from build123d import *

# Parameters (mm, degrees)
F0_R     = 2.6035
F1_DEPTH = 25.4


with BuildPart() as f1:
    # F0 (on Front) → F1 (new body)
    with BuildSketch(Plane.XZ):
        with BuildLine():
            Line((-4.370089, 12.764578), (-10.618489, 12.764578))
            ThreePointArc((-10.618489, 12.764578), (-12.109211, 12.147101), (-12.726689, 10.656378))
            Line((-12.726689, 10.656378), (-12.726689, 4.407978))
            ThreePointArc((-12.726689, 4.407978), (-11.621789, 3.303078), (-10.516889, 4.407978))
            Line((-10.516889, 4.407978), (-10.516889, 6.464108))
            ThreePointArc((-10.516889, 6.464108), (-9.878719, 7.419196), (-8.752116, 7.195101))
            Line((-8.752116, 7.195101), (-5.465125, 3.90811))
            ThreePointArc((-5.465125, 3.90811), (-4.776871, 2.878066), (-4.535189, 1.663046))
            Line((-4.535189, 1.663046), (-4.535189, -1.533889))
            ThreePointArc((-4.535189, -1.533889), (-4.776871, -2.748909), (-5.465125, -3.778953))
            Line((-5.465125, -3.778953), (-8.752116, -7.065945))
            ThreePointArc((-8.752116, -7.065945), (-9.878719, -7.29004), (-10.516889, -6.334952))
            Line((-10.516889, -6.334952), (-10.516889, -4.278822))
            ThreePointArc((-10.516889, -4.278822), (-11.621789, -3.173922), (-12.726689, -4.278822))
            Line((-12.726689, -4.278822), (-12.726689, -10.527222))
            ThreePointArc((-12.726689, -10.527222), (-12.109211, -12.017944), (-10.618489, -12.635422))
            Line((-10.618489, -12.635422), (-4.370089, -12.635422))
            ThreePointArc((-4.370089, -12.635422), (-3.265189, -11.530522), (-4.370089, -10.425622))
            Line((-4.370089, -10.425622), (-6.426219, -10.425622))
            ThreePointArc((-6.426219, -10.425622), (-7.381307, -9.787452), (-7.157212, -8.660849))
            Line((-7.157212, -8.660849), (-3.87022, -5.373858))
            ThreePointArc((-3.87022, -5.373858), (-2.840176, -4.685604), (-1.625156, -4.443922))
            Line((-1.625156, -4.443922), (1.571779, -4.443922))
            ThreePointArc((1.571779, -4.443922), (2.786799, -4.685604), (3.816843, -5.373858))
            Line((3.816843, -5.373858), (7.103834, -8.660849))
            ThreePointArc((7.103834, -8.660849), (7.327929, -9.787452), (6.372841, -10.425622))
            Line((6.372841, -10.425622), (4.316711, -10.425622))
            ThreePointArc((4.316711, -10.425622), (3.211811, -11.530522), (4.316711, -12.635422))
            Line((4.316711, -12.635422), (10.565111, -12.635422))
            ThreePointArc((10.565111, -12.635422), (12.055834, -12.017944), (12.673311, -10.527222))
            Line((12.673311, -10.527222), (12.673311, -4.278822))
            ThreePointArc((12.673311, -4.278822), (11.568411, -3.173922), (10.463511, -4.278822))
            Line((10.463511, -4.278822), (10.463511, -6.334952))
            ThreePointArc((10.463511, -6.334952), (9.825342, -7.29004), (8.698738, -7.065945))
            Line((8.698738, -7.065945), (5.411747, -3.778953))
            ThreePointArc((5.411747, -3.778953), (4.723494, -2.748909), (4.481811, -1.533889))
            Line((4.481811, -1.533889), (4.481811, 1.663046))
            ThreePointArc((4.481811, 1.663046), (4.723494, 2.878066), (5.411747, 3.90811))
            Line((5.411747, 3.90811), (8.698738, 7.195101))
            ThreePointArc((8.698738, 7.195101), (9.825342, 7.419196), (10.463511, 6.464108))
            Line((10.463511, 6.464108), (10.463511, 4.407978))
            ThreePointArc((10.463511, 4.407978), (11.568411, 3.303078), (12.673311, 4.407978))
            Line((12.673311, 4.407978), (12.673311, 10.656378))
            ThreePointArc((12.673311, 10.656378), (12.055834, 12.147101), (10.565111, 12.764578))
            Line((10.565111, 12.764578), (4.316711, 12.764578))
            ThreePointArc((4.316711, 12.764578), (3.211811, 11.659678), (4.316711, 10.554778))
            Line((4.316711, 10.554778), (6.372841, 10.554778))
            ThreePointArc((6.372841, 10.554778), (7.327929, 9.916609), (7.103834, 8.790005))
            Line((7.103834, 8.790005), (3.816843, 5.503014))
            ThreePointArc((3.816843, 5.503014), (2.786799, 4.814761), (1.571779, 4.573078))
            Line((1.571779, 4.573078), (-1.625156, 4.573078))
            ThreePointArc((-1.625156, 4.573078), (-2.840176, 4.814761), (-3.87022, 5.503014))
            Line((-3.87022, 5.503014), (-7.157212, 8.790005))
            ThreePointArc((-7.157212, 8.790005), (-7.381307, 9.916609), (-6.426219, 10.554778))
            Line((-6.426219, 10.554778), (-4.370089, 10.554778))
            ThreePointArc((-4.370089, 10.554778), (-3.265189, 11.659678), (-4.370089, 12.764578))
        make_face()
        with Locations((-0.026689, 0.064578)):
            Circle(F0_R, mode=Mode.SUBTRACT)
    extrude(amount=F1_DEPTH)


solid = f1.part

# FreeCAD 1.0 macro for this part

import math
import FreeCAD as App
import Part
import Sketcher

V = App.Vector
Q = App.Units.Quantity

doc = App.newDocument("Part")
params = doc.addObject("Spreadsheet::Sheet", "Params")
for row, (alias, value) in enumerate([
    ("sketch1_diameter", "0.205 in"),
    ("sketch1_radius", "0.083 in"),
    ("sketch1_radius2", "0.1250002 in"),
    ("sketch1_width", "0.246 in"),
    ("pad1_length", "1 in"),
], start=1):
    params.set(f"A{row}", alias)
    params.set(f"B{row}", "=" + value)
    params.setAlias(f"B{row}", alias)

body = doc.addObject("PartDesign::Body", "Body")

sketch1 = doc.addObject("Sketcher::SketchObject", "Sketch")
body.addObject(sketch1)
sketch1.AttachmentSupport = (doc.XZ_Plane, [""])
sketch1.MapMode = "FlatFace"
sketch1.addGeometry([
    Part.LineSegment(V(-4.4, 12.8, 0), V(-10.6, 12.8, 0)),
    Part.ArcOfCircle(Part.Circle(V(-10.6, 10.7, 0), V(0, 0, 1), 2.1), math.radians(90), math.radians(180)),
    Part.LineSegment(V(-12.7, 10.7, 0), V(-12.7, 4.4, 0)),
    Part.ArcOfCircle(Part.Circle(V(-11.6, 4.4, 0), V(0, 0, 1), 1.1), math.radians(180), math.radians(360)),
    Part.LineSegment(V(-10.5, 4.4, 0), V(-10.5, 6.5, 0)),
    Part.ArcOfCircle(Part.Circle(V(-9.5, 6.5, 0), V(0, 0, 1), 1), math.radians(45), math.radians(180)),
    Part.LineSegment(V(-8.8, 7.2, 0), V(-5.5, 3.9, 0)),
    Part.ArcOfCircle(Part.Circle(V(-7.7, 1.7, 0), V(0, 0, 1), 3.2), math.radians(0), math.radians(45)),
    Part.LineSegment(V(-4.5, 1.7, 0), V(-4.5, -1.5, 0)),
    Part.ArcOfCircle(Part.Circle(V(-7.7, -1.5, 0), V(0, 0, 1), 3.2), math.radians(-45), math.radians(0)),
    Part.LineSegment(V(-5.5, -3.8, 0), V(-8.8, -7.1, 0)),
    Part.ArcOfCircle(Part.Circle(V(-9.5, -6.3, 0), V(0, 0, 1), 1), math.radians(-180), math.radians(-45)),
    Part.LineSegment(V(-10.5, -6.3, 0), V(-10.5, -4.3, 0)),
    Part.ArcOfCircle(Part.Circle(V(-11.6, -4.3, 0), V(0, 0, 1), 1.1), math.radians(0), math.radians(180)),
    Part.LineSegment(V(-12.7, -4.3, 0), V(-12.7, -10.5, 0)),
    Part.ArcOfCircle(Part.Circle(V(-10.6, -10.5, 0), V(0, 0, 1), 2.1), math.radians(-180), math.radians(-90)),
    Part.LineSegment(V(-10.6, -12.6, 0), V(-4.4, -12.6, 0)),
    Part.ArcOfCircle(Part.Circle(V(-4.4, -11.5, 0), V(0, 0, 1), 1.1), math.radians(-90), math.radians(90)),
    Part.LineSegment(V(-4.4, -10.4, 0), V(-6.4, -10.4, 0)),
    Part.ArcOfCircle(Part.Circle(V(-6.4, -9.4, 0), V(0, 0, 1), 1), math.radians(135), math.radians(270)),
    Part.LineSegment(V(-7.2, -8.7, 0), V(-3.9, -5.4, 0)),
    Part.ArcOfCircle(Part.Circle(V(-1.6, -7.6, 0), V(0, 0, 1), 3.2), math.radians(90), math.radians(135)),
    Part.LineSegment(V(-1.6, -4.4, 0), V(1.6, -4.4, 0)),
    Part.ArcOfCircle(Part.Circle(V(1.6, -7.6, 0), V(0, 0, 1), 3.2), math.radians(45), math.radians(90)),
    Part.LineSegment(V(3.8, -5.4, 0), V(7.1, -8.7, 0)),
    Part.ArcOfCircle(Part.Circle(V(6.4, -9.4, 0), V(0, 0, 1), 1), math.radians(-90), math.radians(45)),
    Part.LineSegment(V(6.4, -10.4, 0), V(4.3, -10.4, 0)),
    Part.ArcOfCircle(Part.Circle(V(4.3, -11.5, 0), V(0, 0, 1), 1.1), math.radians(90), math.radians(270)),
    Part.LineSegment(V(4.3, -12.6, 0), V(10.6, -12.6, 0)),
    Part.ArcOfCircle(Part.Circle(V(10.6, -10.5, 0), V(0, 0, 1), 2.1), math.radians(-90), math.radians(0)),
    Part.LineSegment(V(12.7, -10.5, 0), V(12.7, -4.3, 0)),
    Part.ArcOfCircle(Part.Circle(V(11.6, -4.3, 0), V(0, 0, 1), 1.1), math.radians(0), math.radians(180)),
    Part.LineSegment(V(10.5, -4.3, 0), V(10.5, -6.3, 0)),
    Part.ArcOfCircle(Part.Circle(V(9.4, -6.3, 0), V(0, 0, 1), 1), math.radians(-135), math.radians(0)),
    Part.LineSegment(V(8.7, -7.1, 0), V(5.4, -3.8, 0)),
    Part.ArcOfCircle(Part.Circle(V(7.7, -1.5, 0), V(0, 0, 1), 3.2), math.radians(-180), math.radians(-135)),
    Part.LineSegment(V(4.5, -1.5, 0), V(4.5, 1.7, 0)),
    Part.ArcOfCircle(Part.Circle(V(7.7, 1.7, 0), V(0, 0, 1), 3.2), math.radians(135), math.radians(180)),
    Part.LineSegment(V(5.4, 3.9, 0), V(8.7, 7.2, 0)),
    Part.ArcOfCircle(Part.Circle(V(9.4, 6.5, 0), V(0, 0, 1), 1), math.radians(0), math.radians(135)),
    Part.LineSegment(V(10.5, 6.5, 0), V(10.5, 4.4, 0)),
    Part.ArcOfCircle(Part.Circle(V(11.6, 4.4, 0), V(0, 0, 1), 1.1), math.radians(180), math.radians(360)),
    Part.LineSegment(V(12.7, 4.4, 0), V(12.7, 10.7, 0)),
    Part.ArcOfCircle(Part.Circle(V(10.6, 10.7, 0), V(0, 0, 1), 2.1), math.radians(0), math.radians(90)),
    Part.LineSegment(V(10.6, 12.8, 0), V(4.3, 12.8, 0)),
    Part.ArcOfCircle(Part.Circle(V(4.3, 11.7, 0), V(0, 0, 1), 1.1), math.radians(90), math.radians(270)),
    Part.LineSegment(V(4.3, 10.6, 0), V(6.4, 10.6, 0)),
    Part.ArcOfCircle(Part.Circle(V(6.4, 9.5, 0), V(0, 0, 1), 1), math.radians(-45), math.radians(90)),
    Part.LineSegment(V(7.1, 8.8, 0), V(3.8, 5.5, 0)),
    Part.ArcOfCircle(Part.Circle(V(1.6, 7.7, 0), V(0, 0, 1), 3.2), math.radians(-90), math.radians(-45)),
    Part.LineSegment(V(1.6, 4.6, 0), V(-1.6, 4.6, 0)),
    Part.ArcOfCircle(Part.Circle(V(-1.6, 7.7, 0), V(0, 0, 1), 3.2), math.radians(-135), math.radians(-90)),
    Part.LineSegment(V(-3.9, 5.5, 0), V(-7.2, 8.8, 0)),
    Part.ArcOfCircle(Part.Circle(V(-6.4, 9.5, 0), V(0, 0, 1), 1), math.radians(90), math.radians(225)),
    Part.LineSegment(V(-6.4, 10.6, 0), V(-4.4, 10.6, 0)),
    Part.ArcOfCircle(Part.Circle(V(-4.4, 11.7, 0), V(0, 0, 1), 1.1), math.radians(-90), math.radians(90)),
    Part.Circle(V(0, 0.1, 0), V(0, 0, 1), 2.6),
], False)
sketch1.addConstraint([
    Sketcher.Constraint("Tangent", 0, 2, 1, 1),
    Sketcher.Constraint("Tangent", 1, 2, 2, 1),
    Sketcher.Constraint("Tangent", 2, 2, 3, 1),
    Sketcher.Constraint("Tangent", 3, 2, 4, 1),
    Sketcher.Constraint("Tangent", 4, 2, 5, 2),
    Sketcher.Constraint("Tangent", 5, 1, 6, 1),
    Sketcher.Constraint("Tangent", 6, 2, 7, 2),
    Sketcher.Constraint("Tangent", 7, 1, 8, 1),
    Sketcher.Constraint("Tangent", 8, 2, 9, 2),
    Sketcher.Constraint("Tangent", 9, 1, 10, 1),
    Sketcher.Constraint("Tangent", 10, 2, 11, 2),
    Sketcher.Constraint("Tangent", 11, 1, 12, 1),
    Sketcher.Constraint("Tangent", 12, 2, 13, 1),
    Sketcher.Constraint("Tangent", 13, 2, 14, 1),
    Sketcher.Constraint("Tangent", 14, 2, 15, 1),
    Sketcher.Constraint("Tangent", 15, 2, 16, 1),
    Sketcher.Constraint("Tangent", 16, 2, 17, 1),
    Sketcher.Constraint("Tangent", 17, 2, 18, 1),
    Sketcher.Constraint("Tangent", 18, 2, 19, 2),
    Sketcher.Constraint("Tangent", 19, 1, 20, 1),
    Sketcher.Constraint("Tangent", 20, 2, 21, 2),
    Sketcher.Constraint("Tangent", 21, 1, 22, 1),
    Sketcher.Constraint("Tangent", 22, 2, 23, 2),
    Sketcher.Constraint("Tangent", 23, 1, 24, 1),
    Sketcher.Constraint("Tangent", 24, 2, 25, 2),
    Sketcher.Constraint("Tangent", 25, 1, 26, 1),
    Sketcher.Constraint("Tangent", 26, 2, 27, 1),
    Sketcher.Constraint("Tangent", 27, 2, 28, 1),
    Sketcher.Constraint("Tangent", 28, 2, 29, 1),
    Sketcher.Constraint("Tangent", 29, 2, 30, 1),
    Sketcher.Constraint("Tangent", 30, 2, 31, 1),
    Sketcher.Constraint("Tangent", 31, 2, 32, 1),
    Sketcher.Constraint("Tangent", 32, 2, 33, 2),
    Sketcher.Constraint("Tangent", 33, 1, 34, 1),
    Sketcher.Constraint("Tangent", 34, 2, 35, 2),
    Sketcher.Constraint("Tangent", 35, 1, 36, 1),
    Sketcher.Constraint("Tangent", 36, 2, 37, 2),
    Sketcher.Constraint("Tangent", 37, 1, 38, 1),
    Sketcher.Constraint("Tangent", 38, 2, 39, 2),
    Sketcher.Constraint("Tangent", 39, 1, 40, 1),
    Sketcher.Constraint("Tangent", 40, 2, 41, 1),
    Sketcher.Constraint("Tangent", 41, 2, 42, 1),
    Sketcher.Constraint("Tangent", 42, 2, 43, 1),
    Sketcher.Constraint("Tangent", 43, 2, 44, 1),
    Sketcher.Constraint("Tangent", 44, 2, 45, 1),
    Sketcher.Constraint("Tangent", 45, 2, 46, 1),
    Sketcher.Constraint("Tangent", 46, 2, 47, 2),
    Sketcher.Constraint("Tangent", 47, 1, 48, 1),
    Sketcher.Constraint("Tangent", 48, 2, 49, 2),
    Sketcher.Constraint("Tangent", 49, 1, 50, 1),
    Sketcher.Constraint("Tangent", 50, 2, 51, 2),
    Sketcher.Constraint("Tangent", 51, 1, 52, 1),
    Sketcher.Constraint("Tangent", 52, 2, 53, 2),
    Sketcher.Constraint("Tangent", 53, 1, 54, 1),
    Sketcher.Constraint("Tangent", 54, 2, 55, 1),
    Sketcher.Constraint("Tangent", 55, 2, 0, 1),
    Sketcher.Constraint("Horizontal", 0),
    Sketcher.Constraint("Vertical", 2),
    Sketcher.Constraint("Vertical", 4),
    Sketcher.Constraint("Vertical", 8),
    Sketcher.Constraint("Vertical", 12),
    Sketcher.Constraint("Vertical", 14),
    Sketcher.Constraint("Horizontal", 16),
    Sketcher.Constraint("Horizontal", 18),
    Sketcher.Constraint("Horizontal", 22),
    Sketcher.Constraint("Horizontal", 26),
    Sketcher.Constraint("Horizontal", 28),
    Sketcher.Constraint("Vertical", 30),
    Sketcher.Constraint("Vertical", 32),
    Sketcher.Constraint("Vertical", 36),
    Sketcher.Constraint("Vertical", 40),
    Sketcher.Constraint("Vertical", 42),
    Sketcher.Constraint("Horizontal", 44),
    Sketcher.Constraint("Horizontal", 46),
    Sketcher.Constraint("Horizontal", 50),
    Sketcher.Constraint("Horizontal", 54),
    Sketcher.Constraint("Equal", 7, 9),
    Sketcher.Constraint("Equal", 5, 11),
    Sketcher.Constraint("Equal", 3, 13),
    Sketcher.Constraint("Equal", 1, 15),
    Sketcher.Constraint("Equal", 13, 17),
    Sketcher.Constraint("Equal", 11, 19),
    Sketcher.Constraint("Equal", 9, 21),
    Sketcher.Constraint("Equal", 21, 23),
    Sketcher.Constraint("Equal", 19, 25),
    Sketcher.Constraint("Equal", 17, 27),
    Sketcher.Constraint("Equal", 15, 29),
    Sketcher.Constraint("Equal", 27, 31),
    Sketcher.Constraint("Equal", 25, 33),
    Sketcher.Constraint("Equal", 35, 37),
    Sketcher.Constraint("Equal", 33, 39),
    Sketcher.Constraint("Equal", 31, 41),
    Sketcher.Constraint("Equal", 29, 43),
    Sketcher.Constraint("Equal", 41, 45),
    Sketcher.Constraint("Equal", 39, 47),
    Sketcher.Constraint("Equal", 37, 49),
    Sketcher.Constraint("Equal", 49, 51),
    Sketcher.Constraint("Equal", 47, 53),
    Sketcher.Constraint("Equal", 45, 55),
    Sketcher.Constraint("Perpendicular", 6, 10),
    Sketcher.Constraint("Parallel", 10, 20),
    Sketcher.Constraint("Perpendicular", 20, 24),
    Sketcher.Constraint("Parallel", 24, 34),
    Sketcher.Constraint("Perpendicular", 34, 38),
    Sketcher.Constraint("Parallel", 38, 48),
    Sketcher.Constraint("Perpendicular", 48, 52),
    Sketcher.Constraint("Horizontal", 19, 3, 25, 3),
    Sketcher.Constraint("Horizontal", 13, 3, 31, 3),
    Sketcher.Constraint("Horizontal", 11, 3, 33, 3),
    Sketcher.Constraint("Horizontal", 5, 3, 39, 3),
    Sketcher.Constraint("Horizontal", 3, 3, 41, 3),
    Sketcher.Constraint("Horizontal", 1, 3, 43, 3),
    Sketcher.Constraint("Horizontal", 20, 2, 23, 1),
    Sketcher.Constraint("Horizontal", 9, 1, 34, 2),
    Sketcher.Constraint("Horizontal", 8, 2, 35, 1),
    Sketcher.Constraint("Horizontal", 7, 1, 36, 2),
    Sketcher.Constraint("Vertical", 5, 3, 11, 3),
    Sketcher.Constraint("Vertical", 27, 3, 45, 3),
    Sketcher.Constraint("Vertical", 25, 3, 47, 3),
    Sketcher.Constraint("Vertical", 19, 3, 53, 3),
    Sketcher.Constraint("Vertical", 17, 3, 55, 3),
    Sketcher.Constraint("Vertical", 23, 1, 48, 2),
    Sketcher.Constraint("Equal", 18, 26),
    Sketcher.Constraint("Equal", 16, 28),
    Sketcher.Constraint("Equal", 44, 2),
    Sketcher.Constraint("Equal", 54, 4),
    Sketcher.Constraint("Equal", 50, 8),
    Sketcher.Constraint("Equal", 4, 12),
    Sketcher.Constraint("Equal", 2, 14),
    Sketcher.Constraint("Equal", 10, 20),
    Sketcher.Constraint("Diameter", 56, Q("0.205 in")),
    Sketcher.Constraint("Radius", 1, Q("0.083 in")),
    Sketcher.Constraint("Radius", 35, Q("0.1250002 in")),
    Sketcher.Constraint("Radius", 3, Q("0.0435 in")),
    Sketcher.Constraint("Radius", 5, Q("0.0407 in")),
    Sketcher.Constraint("DistanceX", 0, 2, 0, 1, Q("0.246 in")),
    Sketcher.Constraint("DistanceX", 18, 2, 18, 1, Q("2.05613 mm")),
    Sketcher.Constraint("DistanceY", -1, 1, 5, 1, Q("7.195101 mm")),
    Sketcher.Constraint("DistanceX", 22, 1, 22, 2, Q("3.196935 mm")),
    Sketcher.Constraint("DistanceX", 1, 3, -1, 1, Q("10.618489 mm")),
    Sketcher.Constraint("DistanceY", -1, 1, 7, 3, Q("1.663049 mm")),
    Sketcher.Constraint("DistanceX", 56, 3, -1, 1, Q("0.026689 mm")),
    Sketcher.Constraint("DistanceY", -1, 1, 56, 3, Q("0.064578 mm")),
])
sketch1.setExpression("Constraints[130]", "Params.sketch1_diameter")
sketch1.setExpression("Constraints[131]", "Params.sketch1_radius")
sketch1.setExpression("Constraints[132]", "Params.sketch1_radius2")
sketch1.setExpression("Constraints[135]", "Params.sketch1_width")
pad1 = doc.addObject("PartDesign::Pad", "Pad")
body.addObject(pad1)
pad1.Profile = sketch1
pad1.setExpression("Length", "Params.pad1_length")

doc.recompute()
